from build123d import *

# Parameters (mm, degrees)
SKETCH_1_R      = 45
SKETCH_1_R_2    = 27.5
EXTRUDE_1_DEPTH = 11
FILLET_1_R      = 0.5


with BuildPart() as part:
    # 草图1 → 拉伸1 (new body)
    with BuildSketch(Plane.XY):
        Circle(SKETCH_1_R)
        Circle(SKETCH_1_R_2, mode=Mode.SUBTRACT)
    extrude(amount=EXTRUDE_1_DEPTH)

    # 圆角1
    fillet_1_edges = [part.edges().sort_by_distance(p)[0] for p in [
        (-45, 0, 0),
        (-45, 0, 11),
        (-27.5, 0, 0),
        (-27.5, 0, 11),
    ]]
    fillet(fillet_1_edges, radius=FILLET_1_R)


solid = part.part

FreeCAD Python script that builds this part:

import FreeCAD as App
import Part
import Sketcher

V = App.Vector
Q = App.Units.Quantity


def edges_at(feature, points):
    """Names of the edges that pass closest to the given points."""
    edges = feature.Shape.Edges
    near = lambda p: min(range(len(edges)), key=lambda i: edges[i].distToShape(Part.Vertex(*p))[0])
    return sorted({f"Edge{near(p) + 1}" for p in points})

doc = App.newDocument("Part")
body = doc.addObject("PartDesign::Body", "Body")

# Sketch on XY plane
sketch1 = body.newObject("Sketcher::SketchObject", "Sketch")
sketch1.AttachmentSupport = (doc.getObject("XY_Plane"), [""])
sketch1.MapMode = "FlatFace"
sketch1.addGeometry([
    Part.Circle(V(0, 0, 0), V(0, 0, 1), 45),
    Part.Circle(V(0, 0, 0), V(0, 0, 1), 28),
], False)
sketch1.addConstraint([
    Sketcher.Constraint("Coincident", 0, 3, -1, 1),
    Sketcher.Constraint("Coincident", 1, 3, -1, 1),
    Sketcher.Constraint("Diameter", 0, Q("90 mm")),
    Sketcher.Constraint("Diameter", 1, Q("55 mm")),
])
pad1 = body.newObject("PartDesign::Pad", "Pad")
pad1.Profile = sketch1
pad1.Length = 11
doc.recompute()

fillet = body.newObject("PartDesign::Fillet", "Fillet")
fillet.Base = (pad1, edges_at(pad1, [
    (-45, 0, 0),
    (-45, 0, 11),
    (-27.5, 0, 0),
    (-27.5, 0, 11),
]))
fillet.Radius = 0.5

doc.recompute()
